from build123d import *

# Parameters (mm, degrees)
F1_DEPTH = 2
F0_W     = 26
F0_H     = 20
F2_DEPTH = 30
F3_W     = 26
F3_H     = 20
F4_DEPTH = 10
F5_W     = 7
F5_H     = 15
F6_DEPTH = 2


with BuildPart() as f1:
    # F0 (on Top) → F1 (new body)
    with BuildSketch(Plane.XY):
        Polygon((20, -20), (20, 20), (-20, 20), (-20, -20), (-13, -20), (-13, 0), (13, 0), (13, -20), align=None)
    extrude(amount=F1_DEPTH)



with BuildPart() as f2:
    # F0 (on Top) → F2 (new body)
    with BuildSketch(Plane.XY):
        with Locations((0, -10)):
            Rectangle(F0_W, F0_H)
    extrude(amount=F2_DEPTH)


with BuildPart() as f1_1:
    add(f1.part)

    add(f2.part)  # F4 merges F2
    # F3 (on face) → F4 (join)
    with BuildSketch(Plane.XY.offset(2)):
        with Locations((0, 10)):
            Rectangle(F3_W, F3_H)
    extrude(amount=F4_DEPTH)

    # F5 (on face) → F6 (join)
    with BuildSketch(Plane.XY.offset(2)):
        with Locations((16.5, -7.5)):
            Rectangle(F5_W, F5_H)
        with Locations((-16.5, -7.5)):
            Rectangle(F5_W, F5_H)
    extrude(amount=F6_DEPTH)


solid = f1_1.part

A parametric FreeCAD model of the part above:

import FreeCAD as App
import Part
import Sketcher

doc = App.newDocument("Part")
body = doc.addObject("PartDesign::Body", "Body")

# Sketch on XY plane
sketch1 = body.newObject("Sketcher::SketchObject", "Sketch")
sketch1.AttachmentSupport = (doc.getObject("XY_Plane"), [""])
sketch1.MapMode = "FlatFace"
sketch1.addGeometry([
    Part.LineSegment(App.Vector(20, -20, 0), App.Vector(20, 20, 0)),  # 0
    Part.LineSegment(App.Vector(20, 20, 0), App.Vector(-20, 20, 0)),  # 1
    Part.LineSegment(App.Vector(-20, 20, 0), App.Vector(-20, -20, 0)),  # 2
    Part.LineSegment(App.Vector(-20, -20, 0), App.Vector(-13, -20, 0)),  # 3
    Part.LineSegment(App.Vector(-13, -20, 0), App.Vector(-13, 0, 0)),  # 4
    Part.LineSegment(App.Vector(-13, 0, 0), App.Vector(13, 0, 0)),  # 5
    Part.LineSegment(App.Vector(13, 0, 0), App.Vector(13, -20, 0)),  # 6
    Part.LineSegment(App.Vector(13, -20, 0), App.Vector(20, -20, 0)),  # 7
], False)
sketch1.addConstraint([
    Sketcher.Constraint("Coincident", 0, 2, 1, 1),
    Sketcher.Constraint("Coincident", 1, 2, 2, 1),
    Sketcher.Constraint("Coincident", 2, 2, 3, 1),
    Sketcher.Constraint("Coincident", 3, 2, 4, 1),
    Sketcher.Constraint("Coincident", 4, 2, 5, 1),
    Sketcher.Constraint("Coincident", 5, 2, 6, 1),
    Sketcher.Constraint("Coincident", 6, 2, 7, 1),
    Sketcher.Constraint("Coincident", 7, 2, 0, 1),
    Sketcher.Constraint("Vertical", 0),
    Sketcher.Constraint("Horizontal", 1),
    Sketcher.Constraint("Vertical", 2),
    Sketcher.Constraint("Horizontal", 3),
    Sketcher.Constraint("Vertical", 4),
    Sketcher.Constraint("Horizontal", 5),
    Sketcher.Constraint("Vertical", 6),
    Sketcher.Constraint("Horizontal", 7),
    Sketcher.Constraint("Symmetric", 0, 2, 2, 2, -1, 1),
    Sketcher.Constraint("Symmetric", 4, 2, 5, 2, -1, 1),
    Sketcher.Constraint("Horizontal", 3, 2, 6, 2),
    Sketcher.Constraint("Equal", 1, 0),
    Sketcher.Constraint("DistanceX", 1, 2, 1, 1, 40.0),
    Sketcher.Constraint("DistanceX", 3, 1, 3, 2, 7.0),
])
pad1 = body.newObject("PartDesign::Pad", "Pad")
pad1.Profile = sketch1
pad1.Length = 2
body2 = doc.addObject("PartDesign::Body", "Body001")

# Sketch on XY plane
sketch2 = body2.newObject("Sketcher::SketchObject", "Sketch001")
sketch2.AttachmentSupport = (doc.getObject("XY_Plane001"), [""])
sketch2.MapMode = "FlatFace"
sketch2.addGeometry([
    Part.LineSegment(App.Vector(-13, 0, 0), App.Vector(-13, -20, 0)),
    Part.LineSegment(App.Vector(-13, -20, 0), App.Vector(13, -20, 0)),
    Part.LineSegment(App.Vector(13, -20, 0), App.Vector(13, 0, 0)),
    Part.LineSegment(App.Vector(13, 0, 0), App.Vector(-13, 0, 0)),
], False)
sketch2.addConstraint([
    Sketcher.Constraint("Coincident", 0, 2, 1, 1),
    Sketcher.Constraint("Coincident", 1, 2, 2, 1),
    Sketcher.Constraint("Coincident", 2, 2, 3, 1),
    Sketcher.Constraint("Coincident", 3, 2, 0, 1),
    Sketcher.Constraint("Vertical", 0),
    Sketcher.Constraint("Horizontal", 1),
    Sketcher.Constraint("Vertical", 2),
    Sketcher.Constraint("Horizontal", 3),
    Sketcher.Constraint("Symmetric", 2, 2, 3, 2, -1, 1),
    Sketcher.Constraint("DistanceX", 1, 1, 1, 2, 26.0),
    Sketcher.Constraint("DistanceY", 0, 2, 0, 1, 20.0),
])
pad2 = body2.newObject("PartDesign::Pad", "Pad001")
pad2.Profile = sketch2
pad2.Length = 30
doc.recompute()

boolean = body.newObject("PartDesign::Boolean", "Boolean")
boolean.Type = "Fuse"
boolean.addObjects([body2])

# Sketch on XY plane
sketch3 = body.newObject("Sketcher::SketchObject", "Sketch002")
sketch3.AttachmentSupport = (doc.getObject("XY_Plane"), [""])
sketch3.MapMode = "FlatFace"
sketch3.AttachmentOffset = App.Placement(App.Vector(0, 0, 2), App.Rotation())
sketch3.addGeometry([
    Part.LineSegment(App.Vector(-13, 20, 0), App.Vector(-13, 0, 0)),
    Part.LineSegment(App.Vector(-13, 0, 0), App.Vector(13, 0, 0)),
    Part.LineSegment(App.Vector(13, 0, 0), App.Vector(13, 20, 0)),
    Part.LineSegment(App.Vector(13, 20, 0), App.Vector(-13, 20, 0)),
], False)
sketch3.addConstraint([
    Sketcher.Constraint("Coincident", 0, 2, 1, 1),
    Sketcher.Constraint("Coincident", 1, 2, 2, 1),
    Sketcher.Constraint("Coincident", 2, 2, 3, 1),
    Sketcher.Constraint("Coincident", 3, 2, 0, 1),
    Sketcher.Constraint("Vertical", 0),
    Sketcher.Constraint("Horizontal", 1),
    Sketcher.Constraint("Vertical", 2),
    Sketcher.Constraint("Horizontal", 3),
    Sketcher.Constraint("Symmetric", 0, 2, 1, 2, -1, 1),
    Sketcher.Constraint("DistanceX", 1, 1, 1, 2, 26.0),
    Sketcher.Constraint("DistanceY", 0, 2, 0, 1, 20.0),
])
pad3 = body.newObject("PartDesign::Pad", "Pad002")
pad3.Profile = sketch3
pad3.Length = 10

# Sketch on XY plane
sketch4 = body.newObject("Sketcher::SketchObject", "Sketch003")
sketch4.AttachmentSupport = (doc.getObject("XY_Plane"), [""])
sketch4.MapMode = "FlatFace"
sketch4.AttachmentOffset = App.Placement(App.Vector(0, 0, 2), App.Rotation())
sketch4.addGeometry([
    Part.LineSegment(App.Vector(13, 0, 0), App.Vector(13, -15, 0)),  # 0
    Part.LineSegment(App.Vector(13, -15, 0), App.Vector(20, -15, 0)),  # 1
    Part.LineSegment(App.Vector(20, -15, 0), App.Vector(20, 0, 0)),  # 2
    Part.LineSegment(App.Vector(20, 0, 0), App.Vector(13, 0, 0)),  # 3
    Part.LineSegment(App.Vector(-20, 0, 0), App.Vector(-20, -15, 0)),  # 4
    Part.LineSegment(App.Vector(-20, -15, 0), App.Vector(-13, -15, 0)),  # 5
    Part.LineSegment(App.Vector(-13, -15, 0), App.Vector(-13, 0, 0)),  # 6
    Part.LineSegment(App.Vector(-13, 0, 0), App.Vector(-20, 0, 0)),  # 7
], False)
sketch4.addConstraint([
    Sketcher.Constraint("Coincident", 0, 2, 1, 1),
    Sketcher.Constraint("Coincident", 1, 2, 2, 1),
    Sketcher.Constraint("Coincident", 2, 2, 3, 1),
    Sketcher.Constraint("Coincident", 3, 2, 0, 1),
    Sketcher.Constraint("Coincident", 4, 2, 5, 1),
    Sketcher.Constraint("Coincident", 5, 2, 6, 1),
    Sketcher.Constraint("Coincident", 6, 2, 7, 1),
    Sketcher.Constraint("Coincident", 7, 2, 4, 1),
    Sketcher.Constraint("Vertical", 0),
    Sketcher.Constraint("Horizontal", 1),
    Sketcher.Constraint("Vertical", 2),
    Sketcher.Constraint("Horizontal", 3),
    Sketcher.Constraint("Vertical", 4),
    Sketcher.Constraint("Horizontal", 5),
    Sketcher.Constraint("Vertical", 6),
    Sketcher.Constraint("Horizontal", 7),
    Sketcher.Constraint("Symmetric", 3, 2, 6, 2, -1, 1),
    Sketcher.Constraint("Symmetric", 1, 2, 4, 2, -2),
    Sketcher.Constraint("PointOnObject", 2, 2, -1),
    Sketcher.Constraint("DistanceX", 1, 1, 1, 2, 7.0),
    Sketcher.Constraint("DistanceY", 0, 2, 0, 1, 15.0),
    Sketcher.Constraint("DistanceX", -1, 1, 0, 2, 13.0),
])
pad4 = body.newObject("PartDesign::Pad", "Pad003")
pad4.Profile = sketch4
pad4.Length = 2

doc.recompute()
